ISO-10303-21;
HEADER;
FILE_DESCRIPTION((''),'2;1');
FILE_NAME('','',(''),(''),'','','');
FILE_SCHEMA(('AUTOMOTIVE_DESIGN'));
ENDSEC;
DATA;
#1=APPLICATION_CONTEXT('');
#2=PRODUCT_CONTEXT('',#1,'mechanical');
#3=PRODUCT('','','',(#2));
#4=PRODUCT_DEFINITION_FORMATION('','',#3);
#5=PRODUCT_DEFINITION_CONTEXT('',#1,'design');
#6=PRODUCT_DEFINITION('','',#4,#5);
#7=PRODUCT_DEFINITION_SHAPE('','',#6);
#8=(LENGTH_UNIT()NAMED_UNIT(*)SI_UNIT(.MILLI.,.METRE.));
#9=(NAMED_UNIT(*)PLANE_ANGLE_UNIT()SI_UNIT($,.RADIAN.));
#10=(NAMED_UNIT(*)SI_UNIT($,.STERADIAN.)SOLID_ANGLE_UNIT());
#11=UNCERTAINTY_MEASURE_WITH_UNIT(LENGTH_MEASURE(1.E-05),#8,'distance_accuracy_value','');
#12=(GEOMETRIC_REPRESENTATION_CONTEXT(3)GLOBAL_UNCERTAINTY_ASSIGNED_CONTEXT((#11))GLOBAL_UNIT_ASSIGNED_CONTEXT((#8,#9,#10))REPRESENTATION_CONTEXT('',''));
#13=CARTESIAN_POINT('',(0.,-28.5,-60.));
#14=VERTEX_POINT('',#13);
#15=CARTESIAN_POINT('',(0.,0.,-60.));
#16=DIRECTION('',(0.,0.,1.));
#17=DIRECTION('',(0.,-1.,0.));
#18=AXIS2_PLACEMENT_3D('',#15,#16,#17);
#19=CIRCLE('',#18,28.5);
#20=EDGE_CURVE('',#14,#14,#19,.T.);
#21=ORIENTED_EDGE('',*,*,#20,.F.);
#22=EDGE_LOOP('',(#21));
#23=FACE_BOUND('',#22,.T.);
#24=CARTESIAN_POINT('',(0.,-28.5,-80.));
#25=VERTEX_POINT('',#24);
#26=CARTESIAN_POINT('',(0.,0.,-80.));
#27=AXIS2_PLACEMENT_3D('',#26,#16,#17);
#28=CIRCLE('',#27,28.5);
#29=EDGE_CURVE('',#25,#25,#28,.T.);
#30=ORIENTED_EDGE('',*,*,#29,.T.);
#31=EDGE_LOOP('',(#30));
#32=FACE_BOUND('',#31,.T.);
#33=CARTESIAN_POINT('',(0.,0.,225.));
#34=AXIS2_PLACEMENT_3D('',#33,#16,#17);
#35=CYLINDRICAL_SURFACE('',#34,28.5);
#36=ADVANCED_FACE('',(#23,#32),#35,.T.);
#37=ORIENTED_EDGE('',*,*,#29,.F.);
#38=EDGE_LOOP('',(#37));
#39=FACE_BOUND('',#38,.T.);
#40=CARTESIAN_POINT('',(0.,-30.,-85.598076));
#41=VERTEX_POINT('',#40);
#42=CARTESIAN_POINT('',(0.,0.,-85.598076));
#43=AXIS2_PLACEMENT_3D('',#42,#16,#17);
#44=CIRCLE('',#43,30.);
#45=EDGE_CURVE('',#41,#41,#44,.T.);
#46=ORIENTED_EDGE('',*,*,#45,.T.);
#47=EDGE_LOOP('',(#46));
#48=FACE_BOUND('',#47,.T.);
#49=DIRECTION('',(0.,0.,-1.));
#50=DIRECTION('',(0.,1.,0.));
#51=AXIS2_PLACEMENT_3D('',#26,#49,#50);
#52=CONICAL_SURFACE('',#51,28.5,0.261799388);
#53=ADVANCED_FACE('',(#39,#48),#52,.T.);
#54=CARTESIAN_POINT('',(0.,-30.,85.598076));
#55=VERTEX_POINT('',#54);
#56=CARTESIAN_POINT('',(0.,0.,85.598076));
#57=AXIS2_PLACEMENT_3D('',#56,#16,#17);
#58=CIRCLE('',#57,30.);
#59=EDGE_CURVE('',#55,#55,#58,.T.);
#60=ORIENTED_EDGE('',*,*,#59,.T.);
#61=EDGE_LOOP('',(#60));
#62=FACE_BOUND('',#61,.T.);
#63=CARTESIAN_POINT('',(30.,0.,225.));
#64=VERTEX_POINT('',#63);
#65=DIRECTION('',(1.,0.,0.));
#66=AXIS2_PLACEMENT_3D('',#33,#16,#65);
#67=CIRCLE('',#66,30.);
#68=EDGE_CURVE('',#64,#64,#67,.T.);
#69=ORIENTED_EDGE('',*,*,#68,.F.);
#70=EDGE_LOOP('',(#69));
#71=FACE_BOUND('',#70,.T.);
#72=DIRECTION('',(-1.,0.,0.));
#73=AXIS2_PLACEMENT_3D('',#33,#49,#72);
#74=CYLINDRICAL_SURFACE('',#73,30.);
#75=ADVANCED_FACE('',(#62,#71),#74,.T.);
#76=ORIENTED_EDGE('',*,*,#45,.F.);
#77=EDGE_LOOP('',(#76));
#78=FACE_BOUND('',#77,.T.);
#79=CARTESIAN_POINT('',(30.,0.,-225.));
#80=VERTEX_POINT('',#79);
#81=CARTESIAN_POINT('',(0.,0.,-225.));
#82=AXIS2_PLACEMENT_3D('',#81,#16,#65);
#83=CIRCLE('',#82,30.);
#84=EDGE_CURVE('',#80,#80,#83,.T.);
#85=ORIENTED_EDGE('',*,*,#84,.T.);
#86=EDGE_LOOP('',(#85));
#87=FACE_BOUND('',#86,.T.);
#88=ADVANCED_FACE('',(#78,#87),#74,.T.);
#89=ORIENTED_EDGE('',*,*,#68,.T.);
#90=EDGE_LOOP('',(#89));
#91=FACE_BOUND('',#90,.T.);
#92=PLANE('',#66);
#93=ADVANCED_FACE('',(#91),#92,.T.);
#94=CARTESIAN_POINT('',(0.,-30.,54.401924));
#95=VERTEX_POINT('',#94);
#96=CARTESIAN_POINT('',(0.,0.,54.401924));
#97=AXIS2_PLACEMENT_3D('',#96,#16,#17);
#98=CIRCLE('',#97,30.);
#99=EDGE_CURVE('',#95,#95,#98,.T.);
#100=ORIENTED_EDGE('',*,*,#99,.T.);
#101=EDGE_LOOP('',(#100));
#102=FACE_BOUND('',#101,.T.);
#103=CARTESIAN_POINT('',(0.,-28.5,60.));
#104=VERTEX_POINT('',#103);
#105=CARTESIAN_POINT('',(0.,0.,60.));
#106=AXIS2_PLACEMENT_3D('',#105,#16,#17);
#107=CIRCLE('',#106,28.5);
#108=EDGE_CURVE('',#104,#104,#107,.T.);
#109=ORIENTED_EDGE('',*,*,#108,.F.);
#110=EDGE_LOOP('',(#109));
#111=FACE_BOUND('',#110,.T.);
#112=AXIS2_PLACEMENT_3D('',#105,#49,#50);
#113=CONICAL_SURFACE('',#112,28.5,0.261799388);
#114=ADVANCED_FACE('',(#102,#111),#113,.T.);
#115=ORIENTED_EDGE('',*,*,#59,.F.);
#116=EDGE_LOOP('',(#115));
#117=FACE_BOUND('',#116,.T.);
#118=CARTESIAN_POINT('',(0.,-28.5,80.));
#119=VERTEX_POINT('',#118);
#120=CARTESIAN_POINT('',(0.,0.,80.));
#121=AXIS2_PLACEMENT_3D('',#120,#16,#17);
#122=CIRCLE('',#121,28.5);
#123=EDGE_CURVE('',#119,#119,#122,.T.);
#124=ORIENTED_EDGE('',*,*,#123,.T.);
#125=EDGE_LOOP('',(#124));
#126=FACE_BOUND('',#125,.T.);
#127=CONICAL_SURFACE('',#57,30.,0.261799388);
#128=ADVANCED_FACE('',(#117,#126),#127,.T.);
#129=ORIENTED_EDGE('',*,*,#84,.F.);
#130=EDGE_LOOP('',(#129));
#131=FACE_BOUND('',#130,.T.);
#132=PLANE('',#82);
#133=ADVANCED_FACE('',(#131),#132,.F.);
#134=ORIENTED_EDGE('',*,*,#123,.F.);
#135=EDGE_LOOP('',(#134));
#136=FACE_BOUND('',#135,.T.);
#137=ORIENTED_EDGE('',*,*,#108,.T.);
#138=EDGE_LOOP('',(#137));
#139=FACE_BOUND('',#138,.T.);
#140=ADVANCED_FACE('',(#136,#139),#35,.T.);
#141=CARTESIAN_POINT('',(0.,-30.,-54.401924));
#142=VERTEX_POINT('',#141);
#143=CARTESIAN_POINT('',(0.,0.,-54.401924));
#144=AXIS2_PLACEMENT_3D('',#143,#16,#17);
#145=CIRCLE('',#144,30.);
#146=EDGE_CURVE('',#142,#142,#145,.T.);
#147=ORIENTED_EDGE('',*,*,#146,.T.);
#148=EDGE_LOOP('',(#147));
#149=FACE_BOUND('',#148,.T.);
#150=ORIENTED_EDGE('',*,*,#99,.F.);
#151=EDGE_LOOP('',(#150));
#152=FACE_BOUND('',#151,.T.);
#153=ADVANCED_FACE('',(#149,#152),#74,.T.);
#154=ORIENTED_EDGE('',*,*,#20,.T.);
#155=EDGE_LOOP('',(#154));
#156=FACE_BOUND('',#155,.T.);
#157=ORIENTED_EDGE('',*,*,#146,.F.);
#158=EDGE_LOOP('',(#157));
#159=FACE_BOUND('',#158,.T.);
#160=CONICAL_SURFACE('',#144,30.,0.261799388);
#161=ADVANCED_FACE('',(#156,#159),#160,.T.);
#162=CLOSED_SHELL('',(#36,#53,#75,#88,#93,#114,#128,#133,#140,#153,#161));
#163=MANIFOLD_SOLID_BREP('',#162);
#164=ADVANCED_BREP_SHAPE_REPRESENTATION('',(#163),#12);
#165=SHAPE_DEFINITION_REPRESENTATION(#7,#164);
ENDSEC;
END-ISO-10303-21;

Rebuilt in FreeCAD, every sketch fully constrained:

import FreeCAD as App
import Part
import Sketcher
from FreeCAD import Vector
Q = App.Units.Quantity

doc = App.newDocument("Part")
body = doc.addObject("PartDesign::Body", "Body")

sketch1 = doc.addObject("Sketcher::SketchObject", "Sketch")
body.addObject(sketch1)
sketch1.AttachmentSupport = (doc.XY_Plane, [""])
sketch1.MapMode = "FlatFace"
sketch1.addGeometry(Part.Circle(Vector(0, 0, 0), Vector(0, 0, 1), 30), False)
sketch1.addConstraint([
    Sketcher.Constraint("Coincident", 0, 3, -1, 1),
    Sketcher.Constraint("Diameter", 0, Q("60 mm")),
])
pad1 = doc.addObject("PartDesign::Pad", "Pad")
body.addObject(pad1)
pad1.Profile = sketch1
pad1.Length = 450
pad1.Midplane = True

sketch2 = doc.addObject("Sketcher::SketchObject", "Sketch001")
body.addObject(sketch2)
sketch2.AttachmentSupport = (doc.YZ_Plane, [""])
sketch2.MapMode = "FlatFace"
sketch2.addGeometry([
    Part.LineSegment(Vector(30, 85.598076, 0), Vector(28.5, 80, 0)),
    Part.LineSegment(Vector(28.5, 80, 0), Vector(28.5, 60, 0)),
    Part.LineSegment(Vector(28.5, 60, 0), Vector(30, 54.401924, 0)),
    Part.LineSegment(Vector(30, 54.401924, 0), Vector(30, 85.598076, 0)),
    Part.LineSegment(Vector(30, -85.598076, 0), Vector(30, -54.401924, 0)),
    Part.LineSegment(Vector(30, -54.401924, 0), Vector(28.5, -60, 0)),
    Part.LineSegment(Vector(28.5, -60, 0), Vector(28.5, -80, 0)),
    Part.LineSegment(Vector(28.5, -80, 0), Vector(30, -85.598076, 0)),
], False)
sketch2.addConstraint([
    Sketcher.Constraint("Coincident", 0, 2, 1, 1),
    Sketcher.Constraint("Coincident", 1, 2, 2, 1),
    Sketcher.Constraint("Coincident", 2, 2, 3, 1),
    Sketcher.Constraint("Coincident", 3, 2, 0, 1),
    Sketcher.Constraint("Coincident", 4, 2, 5, 1),
    Sketcher.Constraint("Coincident", 5, 2, 6, 1),
    Sketcher.Constraint("Coincident", 6, 2, 7, 1),
    Sketcher.Constraint("Coincident", 7, 2, 4, 1),
    Sketcher.Constraint("Vertical", 1),
    Sketcher.Constraint("Vertical", 3),
    Sketcher.Constraint("Vertical", 4),
    Sketcher.Constraint("Vertical", 6),
    Sketcher.Constraint("Symmetric", 2, 2, 4, 2, -1),
    Sketcher.Constraint("Symmetric", 1, 2, 5, 2, -1),
    Sketcher.Constraint("Parallel", 0, 5),
    Sketcher.Constraint("Parallel", 2, 7),
    Sketcher.Constraint("Equal", 3, 4),
    Sketcher.Constraint("DistanceY", 1, 2, 1, 1, Q("20 mm")),
    Sketcher.Constraint("Angle", 0, Q("-105 deg")),
    Sketcher.Constraint("DistanceY", -1, 1, 0, 2, Q("80 mm")),
    Sketcher.Constraint("DistanceX", -1, 1, 2, 2, Q("30 mm")),
    Sketcher.Constraint("DistanceX", -1, 1, 0, 2, Q("28.5 mm")),
])
groove = doc.addObject("PartDesign::Groove", "Groove")
body.addObject(groove)
groove.Profile = sketch2
groove.ReferenceAxis = (sketch2, ["V_Axis"])
groove.Angle = 360

doc.recompute()
